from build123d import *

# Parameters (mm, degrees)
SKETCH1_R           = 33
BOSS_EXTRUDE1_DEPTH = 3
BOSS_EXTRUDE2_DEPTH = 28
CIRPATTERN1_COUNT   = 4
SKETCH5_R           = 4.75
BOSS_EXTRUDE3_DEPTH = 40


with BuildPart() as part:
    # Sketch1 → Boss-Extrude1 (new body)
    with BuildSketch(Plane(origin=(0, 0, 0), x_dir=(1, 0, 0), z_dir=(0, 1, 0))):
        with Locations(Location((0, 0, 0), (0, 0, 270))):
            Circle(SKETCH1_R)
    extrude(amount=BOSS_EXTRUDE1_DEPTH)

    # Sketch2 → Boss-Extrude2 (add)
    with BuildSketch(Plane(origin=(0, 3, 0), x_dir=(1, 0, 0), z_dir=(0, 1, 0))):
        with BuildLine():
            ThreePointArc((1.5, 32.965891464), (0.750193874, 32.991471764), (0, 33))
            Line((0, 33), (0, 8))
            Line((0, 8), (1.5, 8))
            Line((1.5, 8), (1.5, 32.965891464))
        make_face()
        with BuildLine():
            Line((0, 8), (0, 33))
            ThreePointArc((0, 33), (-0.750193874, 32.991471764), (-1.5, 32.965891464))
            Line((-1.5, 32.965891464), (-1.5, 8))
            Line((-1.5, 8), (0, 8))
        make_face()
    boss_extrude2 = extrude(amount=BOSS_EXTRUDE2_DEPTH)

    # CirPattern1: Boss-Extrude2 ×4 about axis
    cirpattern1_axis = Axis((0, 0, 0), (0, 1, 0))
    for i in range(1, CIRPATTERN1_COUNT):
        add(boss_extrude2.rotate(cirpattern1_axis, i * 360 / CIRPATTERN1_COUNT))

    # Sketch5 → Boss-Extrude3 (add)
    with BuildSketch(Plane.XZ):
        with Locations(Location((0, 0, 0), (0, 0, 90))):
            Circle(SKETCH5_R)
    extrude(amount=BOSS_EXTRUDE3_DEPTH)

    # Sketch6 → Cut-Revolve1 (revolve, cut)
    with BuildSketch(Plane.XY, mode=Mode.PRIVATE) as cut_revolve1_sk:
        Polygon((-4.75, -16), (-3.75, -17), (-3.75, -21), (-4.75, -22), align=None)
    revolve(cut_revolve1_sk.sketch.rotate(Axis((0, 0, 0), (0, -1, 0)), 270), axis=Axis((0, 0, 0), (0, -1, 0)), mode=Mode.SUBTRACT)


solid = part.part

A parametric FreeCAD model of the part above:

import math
import FreeCAD as App
import Part
import Sketcher

V = App.Vector
Q = App.Units.Quantity

doc = App.newDocument("Part")
body = doc.addObject("PartDesign::Body", "Body")

# Sketch on XZ plane
sketch1 = body.newObject("Sketcher::SketchObject", "Sketch")
sketch1.AttachmentSupport = (doc.getObject("XZ_Plane"), [""])
sketch1.MapMode = "FlatFace"
sketch1.addGeometry(Part.Circle(V(0, 0, 0), V(0, 0, 1), 33), False)
sketch1.addConstraint([
    Sketcher.Constraint("Coincident", 0, 3, -1, 1),
    Sketcher.Constraint("Diameter", 0, Q("66 mm")),
])
pad1 = body.newObject("PartDesign::Pad", "Pad")
pad1.Profile = sketch1
pad1.Length = 3
pad1.Reversed = True

# Sketch on XZ plane
sketch2 = body.newObject("Sketcher::SketchObject", "Sketch001")
sketch2.AttachmentSupport = (doc.getObject("XZ_Plane"), [""])
sketch2.MapMode = "FlatFace"
sketch2.AttachmentOffset = App.Placement(V(0, 0, -3), App.Rotation())
sketch2.addGeometry([
    Part.ArcOfCircle(Part.Circle(V(0, 0, 0), V(0, 0, 1), 33), math.radians(-90), math.radians(-87.39)),  # 0
    Part.ArcOfCircle(Part.Circle(V(0, 0, 0), V(0, 0, 1), 33), math.radians(-92.61), math.radians(-90)),  # 1
    Part.LineSegment(V(-1.5, -33, 0), V(-1.5, -8, 0)),  # 2
    Part.LineSegment(V(-1.5, -8, 0), V(1.5, -8, 0)),  # 3
    Part.LineSegment(V(1.5, -8, 0), V(1.5, -33, 0)),  # 4
], False)
sketch2.addConstraint([
    Sketcher.Constraint("Tangent", 0, 1, 1, 2),
    Sketcher.Constraint("Coincident", 1, 1, 2, 1),
    Sketcher.Constraint("Coincident", 2, 2, 3, 1),
    Sketcher.Constraint("Coincident", 3, 2, 4, 1),
    Sketcher.Constraint("Coincident", 4, 2, 0, 2),
    Sketcher.Constraint("Vertical", 2),
    Sketcher.Constraint("Horizontal", 3),
    Sketcher.Constraint("Vertical", 4),
    Sketcher.Constraint("Coincident", 0, 3, -1, 1),
    Sketcher.Constraint("Equal", 0, 1),
    Sketcher.Constraint("PointOnObject", 0, 1, -2),
    Sketcher.Constraint("Horizontal", 1, 1, 4, 2),
    Sketcher.Constraint("Radius", 0, Q("33 mm")),
    Sketcher.Constraint("DistanceX", 3, 1, 3, 2, Q("3 mm")),
    Sketcher.Constraint("DistanceY", 2, 2, -1, 1, Q("8 mm")),
])
pad2 = body.newObject("PartDesign::Pad", "Pad001")
pad2.Profile = sketch2
pad2.Length = 28
pad2.Reversed = True
doc.recompute()

polarpattern = body.newObject("PartDesign::PolarPattern", "PolarPattern")
polarpattern.Originals = [pad2]
polarpattern.Axis = (doc.getObject("Y_Axis"), [""])
polarpattern.Angle = 360
polarpattern.Occurrences = 4
body.Tip = polarpattern

# Sketch on XZ plane
sketch3 = body.newObject("Sketcher::SketchObject", "Sketch002")
sketch3.AttachmentSupport = (doc.getObject("XZ_Plane"), [""])
sketch3.MapMode = "FlatFace"
sketch3.addGeometry(Part.Circle(V(0, 0, 0), V(0, 0, 1), 4.8), False)
sketch3.addConstraint([
    Sketcher.Constraint("Coincident", 0, 3, -1, 1),
    Sketcher.Constraint("Diameter", 0, Q("9.5 mm")),
])
pad3 = body.newObject("PartDesign::Pad", "Pad002")
pad3.Profile = sketch3
pad3.Length = 40

# Sketch on XY plane
sketch4 = body.newObject("Sketcher::SketchObject", "Sketch003")
sketch4.AttachmentSupport = (doc.getObject("XY_Plane"), [""])
sketch4.MapMode = "FlatFace"
sketch4.addGeometry([
    Part.LineSegment(V(-3.8, -17, 0), V(-4.8, -16, 0)),
    Part.LineSegment(V(-4.8, -16, 0), V(-4.8, -22, 0)),
    Part.LineSegment(V(-4.8, -22, 0), V(-3.8, -21, 0)),
    Part.LineSegment(V(-3.8, -21, 0), V(-3.8, -17, 0)),
], False)
sketch4.addConstraint([
    Sketcher.Constraint("Coincident", 0, 2, 1, 1),
    Sketcher.Constraint("Coincident", 1, 2, 2, 1),
    Sketcher.Constraint("Coincident", 2, 2, 3, 1),
    Sketcher.Constraint("Coincident", 3, 2, 0, 1),
    Sketcher.Constraint("Vertical", 1),
    Sketcher.Constraint("Vertical", 3),
    Sketcher.Constraint("Perpendicular", 0, 2),
    Sketcher.Constraint("Equal", 0, 2),
    Sketcher.Constraint("DistanceY", 1, 2, 1, 1, Q("6 mm")),
    Sketcher.Constraint("DistanceY", 3, 1, 3, 2, Q("4 mm")),
    Sketcher.Constraint("DistanceY", 0, 2, -1, 1, Q("16 mm")),
    Sketcher.Constraint("DistanceX", 0, 2, -1, 1, Q("4.75 mm")),
])
groove = body.newObject("PartDesign::Groove", "Groove")
groove.Profile = sketch4
groove.ReferenceAxis = (sketch4, ["V_Axis"])
groove.Angle = 360

doc.recompute()
